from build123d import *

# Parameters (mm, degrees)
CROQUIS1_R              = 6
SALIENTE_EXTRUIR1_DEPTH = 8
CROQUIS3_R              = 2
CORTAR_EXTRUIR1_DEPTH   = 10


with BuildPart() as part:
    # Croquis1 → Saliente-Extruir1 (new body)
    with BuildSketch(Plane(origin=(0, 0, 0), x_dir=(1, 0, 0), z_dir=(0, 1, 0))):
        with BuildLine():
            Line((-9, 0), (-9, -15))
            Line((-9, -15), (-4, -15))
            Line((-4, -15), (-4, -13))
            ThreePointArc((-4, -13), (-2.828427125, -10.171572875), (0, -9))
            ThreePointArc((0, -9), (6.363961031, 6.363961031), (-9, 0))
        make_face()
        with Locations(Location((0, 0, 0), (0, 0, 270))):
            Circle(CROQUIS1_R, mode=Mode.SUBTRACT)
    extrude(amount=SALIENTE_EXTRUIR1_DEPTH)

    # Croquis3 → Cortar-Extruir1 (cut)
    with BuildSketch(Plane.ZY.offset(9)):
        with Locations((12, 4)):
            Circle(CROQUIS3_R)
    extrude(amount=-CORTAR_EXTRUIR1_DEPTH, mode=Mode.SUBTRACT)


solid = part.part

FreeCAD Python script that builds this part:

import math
import FreeCAD as App
import Part
import Sketcher
from FreeCAD import Vector
Q = App.Units.Quantity

doc = App.newDocument("Part")
params = doc.addObject("Spreadsheet::Sheet", "Params")
for row, (alias, value) in enumerate([
    ("sketch1_diameter", "12 mm"),
    ("sketch1_radius", "4 mm"),
    ("sketch1_radius2", "9 mm"),
    ("sketch1_height", "15 mm"),
    ("pad1_length", "8 mm"),
    ("sketch2_diameter", "4 mm"),
    ("pocket1_length", "10 mm"),
], start=1):
    params.set(f"A{row}", alias)
    params.set(f"B{row}", "=" + value)
    params.setAlias(f"B{row}", alias)

body = doc.addObject("PartDesign::Body", "Body")

# Sketch on XZ plane
sketch1 = body.newObject("Sketcher::SketchObject", "Sketch")
sketch1.AttachmentSupport = (doc.getObject("XZ_Plane"), [""])
sketch1.MapMode = "FlatFace"
sketch1.addGeometry(Part.LineSegment(Vector(-9, 0, 0), Vector(-9, 15, 0)), False)
sketch1.addGeometry(Part.LineSegment(Vector(-9, 15, 0), Vector(-4, 15, 0)), False)
sketch1.addGeometry(Part.LineSegment(Vector(-4, 15, 0), Vector(-4, 13, 0)), False)
sketch1.addGeometry(Part.ArcOfCircle(Part.Circle(Vector(0, 13, 0), Vector(0, 0, 1), 4), math.radians(180), math.radians(270)), False)
sketch1.addGeometry(Part.ArcOfCircle(Part.Circle(Vector(0, 0, 0), Vector(0, 0, 1), 9), math.radians(180), math.radians(450)), False)
sketch1.addGeometry(Part.Circle(Vector(0, 0, 0), Vector(0, 0, 1), 6), False)
sketch1.addConstraint(Sketcher.Constraint("Coincident", 0, 2, 1, 1))
sketch1.addConstraint(Sketcher.Constraint("Coincident", 1, 2, 2, 1))
sketch1.addConstraint(Sketcher.Constraint("Tangent", 2, 2, 3, 1))
sketch1.addConstraint(Sketcher.Constraint("Tangent", 3, 2, 4, 2))
sketch1.addConstraint(Sketcher.Constraint("Tangent", 4, 1, 0, 1))
sketch1.addConstraint(Sketcher.Constraint("Vertical", 0))
sketch1.addConstraint(Sketcher.Constraint("Horizontal", 1))
sketch1.addConstraint(Sketcher.Constraint("Vertical", 2))
sketch1.addConstraint(Sketcher.Constraint("Coincident", 4, 3, -1, 1))
sketch1.addConstraint(Sketcher.Constraint("Coincident", 5, 3, -1, 1))
sketch1.addConstraint(Sketcher.Constraint("PointOnObject", 3, 3, -2))
sketch1.addConstraint(Sketcher.Constraint("Diameter", 5, Q("12 mm")))
sketch1.addConstraint(Sketcher.Constraint("Radius", 3, Q("4 mm")))
sketch1.addConstraint(Sketcher.Constraint("Radius", 4, Q("9 mm")))
sketch1.addConstraint(Sketcher.Constraint("DistanceY", 0, 1, 0, 2, Q("15 mm")))
sketch1.setExpression("Constraints[11]", "Params.sketch1_diameter")
sketch1.setExpression("Constraints[12]", "Params.sketch1_radius")
sketch1.setExpression("Constraints[13]", "Params.sketch1_radius2")
sketch1.setExpression("Constraints[14]", "Params.sketch1_height")
pad1 = body.newObject("PartDesign::Pad", "Pad")
pad1.Profile = sketch1
pad1.setExpression("Length", "Params.pad1_length")
pad1.Reversed = True

# Sketch on YZ plane
sketch2 = body.newObject("Sketcher::SketchObject", "Sketch001")
sketch2.AttachmentSupport = (doc.getObject("YZ_Plane"), [""])
sketch2.MapMode = "FlatFace"
sketch2.AttachmentOffset = App.Placement(Vector(0, 0, -9), App.Rotation())
sketch2.addGeometry(Part.Circle(Vector(4, 12, 0), Vector(0, 0, 1), 2), False)
sketch2.addConstraint(Sketcher.Constraint("Diameter", 0, Q("4 mm")))
sketch2.addConstraint(Sketcher.Constraint("DistanceX", -1, 1, 0, 3, Q("4 mm")))
sketch2.addConstraint(Sketcher.Constraint("DistanceY", -1, 1, 0, 3, Q("12 mm")))
sketch2.setExpression("Constraints[0]", "Params.sketch2_diameter")
pocket1 = body.newObject("PartDesign::Pocket", "Pocket")
pocket1.Profile = sketch2
pocket1.setExpression("Length", "Params.pocket1_length")
pocket1.Reversed = True

doc.recompute()
